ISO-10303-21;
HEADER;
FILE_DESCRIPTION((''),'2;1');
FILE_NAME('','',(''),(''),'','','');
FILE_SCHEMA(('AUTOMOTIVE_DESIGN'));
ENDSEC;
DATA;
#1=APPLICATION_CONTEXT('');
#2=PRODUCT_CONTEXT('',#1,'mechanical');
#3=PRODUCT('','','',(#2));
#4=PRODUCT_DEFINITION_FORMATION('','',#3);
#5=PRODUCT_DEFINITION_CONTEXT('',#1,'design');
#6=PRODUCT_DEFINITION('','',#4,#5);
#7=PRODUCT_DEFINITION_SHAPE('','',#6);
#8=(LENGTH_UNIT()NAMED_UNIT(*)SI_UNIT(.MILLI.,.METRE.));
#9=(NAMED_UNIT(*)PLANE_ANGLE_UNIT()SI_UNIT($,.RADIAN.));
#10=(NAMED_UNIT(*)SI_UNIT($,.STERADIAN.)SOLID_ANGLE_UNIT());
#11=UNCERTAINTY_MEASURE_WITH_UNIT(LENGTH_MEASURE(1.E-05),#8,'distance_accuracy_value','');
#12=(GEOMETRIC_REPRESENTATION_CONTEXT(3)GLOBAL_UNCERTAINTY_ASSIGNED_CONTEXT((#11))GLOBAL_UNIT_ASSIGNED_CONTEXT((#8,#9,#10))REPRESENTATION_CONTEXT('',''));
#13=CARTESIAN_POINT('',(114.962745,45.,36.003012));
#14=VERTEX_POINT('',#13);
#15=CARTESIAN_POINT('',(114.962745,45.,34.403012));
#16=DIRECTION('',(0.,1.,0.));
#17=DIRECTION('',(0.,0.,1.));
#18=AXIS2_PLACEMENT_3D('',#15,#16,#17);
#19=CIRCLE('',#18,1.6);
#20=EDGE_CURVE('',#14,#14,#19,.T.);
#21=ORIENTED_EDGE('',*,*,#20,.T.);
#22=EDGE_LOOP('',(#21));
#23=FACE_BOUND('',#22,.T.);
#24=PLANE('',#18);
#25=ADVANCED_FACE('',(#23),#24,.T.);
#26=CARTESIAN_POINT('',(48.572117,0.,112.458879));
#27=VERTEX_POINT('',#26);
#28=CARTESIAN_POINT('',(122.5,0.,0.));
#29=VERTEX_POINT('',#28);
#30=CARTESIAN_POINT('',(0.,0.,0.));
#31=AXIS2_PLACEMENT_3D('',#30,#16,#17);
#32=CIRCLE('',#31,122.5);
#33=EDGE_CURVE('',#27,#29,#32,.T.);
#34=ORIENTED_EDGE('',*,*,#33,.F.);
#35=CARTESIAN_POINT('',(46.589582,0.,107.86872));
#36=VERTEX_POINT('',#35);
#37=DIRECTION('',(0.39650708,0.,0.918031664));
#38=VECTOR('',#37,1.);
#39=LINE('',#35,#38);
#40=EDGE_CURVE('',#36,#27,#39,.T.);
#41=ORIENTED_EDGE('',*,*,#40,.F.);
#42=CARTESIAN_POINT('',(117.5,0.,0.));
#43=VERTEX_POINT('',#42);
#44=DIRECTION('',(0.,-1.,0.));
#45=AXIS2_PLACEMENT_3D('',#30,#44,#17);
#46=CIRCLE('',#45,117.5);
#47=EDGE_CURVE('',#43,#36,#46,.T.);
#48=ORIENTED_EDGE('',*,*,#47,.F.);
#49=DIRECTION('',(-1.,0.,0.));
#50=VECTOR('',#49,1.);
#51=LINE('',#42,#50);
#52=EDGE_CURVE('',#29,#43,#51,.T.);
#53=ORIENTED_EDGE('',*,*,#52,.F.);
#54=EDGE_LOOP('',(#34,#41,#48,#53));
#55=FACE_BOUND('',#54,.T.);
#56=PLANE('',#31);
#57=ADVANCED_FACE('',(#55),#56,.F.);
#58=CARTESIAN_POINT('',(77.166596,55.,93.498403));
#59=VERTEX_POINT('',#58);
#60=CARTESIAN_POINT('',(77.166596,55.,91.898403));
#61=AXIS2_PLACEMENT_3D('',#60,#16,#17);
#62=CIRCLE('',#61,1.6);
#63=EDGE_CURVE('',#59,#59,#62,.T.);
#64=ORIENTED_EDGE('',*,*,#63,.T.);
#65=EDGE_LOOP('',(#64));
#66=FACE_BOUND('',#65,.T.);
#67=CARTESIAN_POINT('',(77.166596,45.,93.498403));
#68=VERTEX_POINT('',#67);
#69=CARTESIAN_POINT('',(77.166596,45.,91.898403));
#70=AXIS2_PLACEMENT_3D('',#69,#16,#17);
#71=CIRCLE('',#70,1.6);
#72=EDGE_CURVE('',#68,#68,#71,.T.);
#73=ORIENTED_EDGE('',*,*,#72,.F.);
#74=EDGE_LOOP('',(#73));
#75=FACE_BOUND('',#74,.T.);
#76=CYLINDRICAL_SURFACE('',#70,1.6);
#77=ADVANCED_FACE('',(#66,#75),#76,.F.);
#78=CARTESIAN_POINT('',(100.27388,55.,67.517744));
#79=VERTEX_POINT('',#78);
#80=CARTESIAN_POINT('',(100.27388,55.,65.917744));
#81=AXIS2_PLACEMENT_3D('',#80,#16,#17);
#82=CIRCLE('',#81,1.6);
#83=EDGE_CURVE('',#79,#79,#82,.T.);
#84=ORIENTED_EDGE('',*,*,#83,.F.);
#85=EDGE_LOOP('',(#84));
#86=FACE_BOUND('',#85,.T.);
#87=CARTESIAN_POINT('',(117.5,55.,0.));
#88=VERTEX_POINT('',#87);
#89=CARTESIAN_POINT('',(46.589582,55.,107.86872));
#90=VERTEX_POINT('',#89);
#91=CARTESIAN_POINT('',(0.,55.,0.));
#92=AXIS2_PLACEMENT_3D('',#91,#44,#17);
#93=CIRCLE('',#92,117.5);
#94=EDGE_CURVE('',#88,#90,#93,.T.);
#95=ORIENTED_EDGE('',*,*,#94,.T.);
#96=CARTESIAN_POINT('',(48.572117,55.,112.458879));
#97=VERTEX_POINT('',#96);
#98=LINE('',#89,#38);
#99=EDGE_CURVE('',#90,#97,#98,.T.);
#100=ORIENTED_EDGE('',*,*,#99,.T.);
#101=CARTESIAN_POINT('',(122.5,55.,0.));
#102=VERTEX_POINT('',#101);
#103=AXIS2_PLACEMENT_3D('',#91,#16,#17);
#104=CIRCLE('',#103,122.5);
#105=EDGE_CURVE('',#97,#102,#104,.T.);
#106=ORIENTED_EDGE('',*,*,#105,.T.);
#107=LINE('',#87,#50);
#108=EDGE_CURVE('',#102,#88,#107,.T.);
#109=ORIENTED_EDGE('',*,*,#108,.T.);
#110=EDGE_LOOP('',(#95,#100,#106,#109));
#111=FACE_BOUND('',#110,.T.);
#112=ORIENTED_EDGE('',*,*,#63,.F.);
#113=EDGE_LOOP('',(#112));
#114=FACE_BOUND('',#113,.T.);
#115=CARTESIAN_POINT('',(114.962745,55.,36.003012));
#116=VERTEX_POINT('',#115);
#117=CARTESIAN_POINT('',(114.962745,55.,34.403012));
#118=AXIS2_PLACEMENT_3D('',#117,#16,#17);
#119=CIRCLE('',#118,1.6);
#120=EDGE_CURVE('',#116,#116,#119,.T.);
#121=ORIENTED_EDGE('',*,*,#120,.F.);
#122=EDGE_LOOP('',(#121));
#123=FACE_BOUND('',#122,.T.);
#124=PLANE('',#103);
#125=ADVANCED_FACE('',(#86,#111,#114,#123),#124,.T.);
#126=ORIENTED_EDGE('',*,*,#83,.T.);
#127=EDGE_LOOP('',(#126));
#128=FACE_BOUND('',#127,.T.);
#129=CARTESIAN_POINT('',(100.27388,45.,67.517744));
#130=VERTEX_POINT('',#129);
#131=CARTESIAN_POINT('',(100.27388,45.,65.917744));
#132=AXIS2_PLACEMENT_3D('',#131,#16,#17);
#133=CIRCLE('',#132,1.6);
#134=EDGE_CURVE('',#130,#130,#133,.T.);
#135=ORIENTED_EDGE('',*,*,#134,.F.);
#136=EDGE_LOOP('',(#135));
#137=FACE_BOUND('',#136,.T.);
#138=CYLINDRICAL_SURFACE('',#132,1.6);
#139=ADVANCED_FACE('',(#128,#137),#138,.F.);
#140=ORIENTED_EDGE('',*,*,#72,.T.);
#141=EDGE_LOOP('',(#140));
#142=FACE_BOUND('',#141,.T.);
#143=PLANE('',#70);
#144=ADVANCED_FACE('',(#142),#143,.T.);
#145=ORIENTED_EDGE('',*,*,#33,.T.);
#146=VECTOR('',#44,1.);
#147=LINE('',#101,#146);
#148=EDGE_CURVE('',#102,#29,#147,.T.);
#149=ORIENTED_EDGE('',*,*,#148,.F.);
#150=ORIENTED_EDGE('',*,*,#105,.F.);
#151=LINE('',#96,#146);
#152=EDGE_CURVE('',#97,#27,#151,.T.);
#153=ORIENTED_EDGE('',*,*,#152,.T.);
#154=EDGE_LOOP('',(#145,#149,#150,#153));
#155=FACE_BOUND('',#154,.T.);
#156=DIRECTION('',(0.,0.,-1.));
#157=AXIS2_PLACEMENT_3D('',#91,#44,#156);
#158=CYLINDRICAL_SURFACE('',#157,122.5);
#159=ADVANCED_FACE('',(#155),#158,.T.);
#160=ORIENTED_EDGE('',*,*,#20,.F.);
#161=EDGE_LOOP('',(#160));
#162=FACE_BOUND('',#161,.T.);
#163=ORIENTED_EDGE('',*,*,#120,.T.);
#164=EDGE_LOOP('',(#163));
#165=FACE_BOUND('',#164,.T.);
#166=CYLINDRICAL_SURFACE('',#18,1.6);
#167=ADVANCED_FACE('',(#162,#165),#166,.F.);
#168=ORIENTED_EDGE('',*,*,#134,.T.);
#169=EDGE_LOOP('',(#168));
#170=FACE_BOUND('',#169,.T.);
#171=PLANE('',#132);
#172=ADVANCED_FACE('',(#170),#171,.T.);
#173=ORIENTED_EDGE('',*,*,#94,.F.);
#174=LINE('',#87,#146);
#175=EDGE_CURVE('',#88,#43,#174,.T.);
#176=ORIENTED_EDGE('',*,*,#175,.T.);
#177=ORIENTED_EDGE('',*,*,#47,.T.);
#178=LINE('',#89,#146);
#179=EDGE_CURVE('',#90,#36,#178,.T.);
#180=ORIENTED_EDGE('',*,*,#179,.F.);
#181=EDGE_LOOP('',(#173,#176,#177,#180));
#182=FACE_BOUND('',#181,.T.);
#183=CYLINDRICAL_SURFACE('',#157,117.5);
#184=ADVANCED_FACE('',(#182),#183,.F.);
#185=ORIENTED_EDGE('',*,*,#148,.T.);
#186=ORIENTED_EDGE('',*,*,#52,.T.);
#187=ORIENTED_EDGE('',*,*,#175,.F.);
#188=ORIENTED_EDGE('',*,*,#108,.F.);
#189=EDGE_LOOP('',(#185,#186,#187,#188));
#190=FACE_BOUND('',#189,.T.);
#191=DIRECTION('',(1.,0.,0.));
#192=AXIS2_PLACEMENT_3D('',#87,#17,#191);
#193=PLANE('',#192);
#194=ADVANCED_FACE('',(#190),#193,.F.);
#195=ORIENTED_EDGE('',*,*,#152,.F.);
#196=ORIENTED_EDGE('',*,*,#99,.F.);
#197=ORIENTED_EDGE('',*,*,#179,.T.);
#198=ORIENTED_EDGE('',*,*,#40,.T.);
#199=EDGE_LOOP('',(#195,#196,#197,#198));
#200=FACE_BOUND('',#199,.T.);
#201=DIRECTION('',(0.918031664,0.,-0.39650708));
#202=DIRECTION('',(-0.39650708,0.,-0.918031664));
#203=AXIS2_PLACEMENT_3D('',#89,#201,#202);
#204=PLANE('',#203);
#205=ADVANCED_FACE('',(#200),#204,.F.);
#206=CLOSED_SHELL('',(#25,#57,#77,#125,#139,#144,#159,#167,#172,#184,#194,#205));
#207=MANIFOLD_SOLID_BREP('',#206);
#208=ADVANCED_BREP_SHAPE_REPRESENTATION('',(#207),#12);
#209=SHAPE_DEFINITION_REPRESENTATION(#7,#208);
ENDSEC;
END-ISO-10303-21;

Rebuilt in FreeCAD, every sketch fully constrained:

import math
import FreeCAD as App
import Part
import Sketcher

V = App.Vector
Q = App.Units.Quantity

doc = App.newDocument("Part")
body = doc.addObject("PartDesign::Body", "Body")

# Sketch on XZ plane
sketch1 = body.newObject("Sketcher::SketchObject", "Sketch")
sketch1.AttachmentSupport = (doc.getObject("XZ_Plane"), [""])
sketch1.MapMode = "FlatFace"
sketch1.addGeometry([
    Part.LineSegment(V(122, 0, 0), V(118, 0, 0)),
    Part.ArcOfCircle(Part.Circle(V(0, 0, 0), V(0, 0, 1), 117), math.radians(0), math.radians(67)),
    Part.LineSegment(V(47, 108, 0), V(49, 112, 0)),
    Part.ArcOfCircle(Part.Circle(V(0, 0, 0), V(0, 0, 1), 122), math.radians(0), math.radians(67)),
], False)
sketch1.addConstraint([
    Sketcher.Constraint("Coincident", 0, 2, 1, 1),
    Sketcher.Constraint("Coincident", 1, 2, 2, 1),
    Sketcher.Constraint("Coincident", 2, 2, 3, 2),
    Sketcher.Constraint("Coincident", 3, 1, 0, 1),
    Sketcher.Constraint("Horizontal", 0),
    Sketcher.Constraint("Coincident", 1, 3, -1, 1),
    Sketcher.Constraint("Coincident", 3, 3, -1, 1),
    Sketcher.Constraint("PointOnObject", 0, 2, -1),
    Sketcher.Constraint("Radius", 1, 117.5),
    Sketcher.Constraint("Radius", 3, 122.5),
    Sketcher.Constraint("Angle", 2, Q("66.64 deg")),
    Sketcher.Constraint("DistanceX", -1, 1, 1, 2, 46.589582),
])
pad1 = body.newObject("PartDesign::Pad", "Pad")
pad1.Profile = sketch1
pad1.Length = 55
pad1.Reversed = True

# Sketch on XZ plane
sketch2 = body.newObject("Sketcher::SketchObject", "Sketch001")
sketch2.AttachmentSupport = (doc.getObject("XZ_Plane"), [""])
sketch2.MapMode = "FlatFace"
sketch2.AttachmentOffset = App.Placement(V(0, 0, -55), App.Rotation())
sketch2.addGeometry([
    Part.Circle(V(77.2, 91.9, 0), V(0, 0, 1), 1.6),
    Part.Circle(V(100.3, 65.9, 0), V(0, 0, 1), 1.6),
    Part.Circle(V(115, 34.4, 0), V(0, 0, 1), 1.6),
], False)
sketch2.addConstraint([
    Sketcher.Constraint("Equal", 0, 1),
    Sketcher.Constraint("Equal", 1, 2),
    Sketcher.Constraint("Diameter", 0, 3.2),
    Sketcher.Constraint("DistanceX", -1, 1, 1, 3, 100.27388),
    Sketcher.Constraint("DistanceY", -1, 1, 2, 3, 34.403012),
    Sketcher.Constraint("DistanceY", 1, 3, 0, 3, 25.980658),
    Sketcher.Constraint("DistanceX", 0, 3, 2, 3, 37.796149),
    Sketcher.Constraint("DistanceY", 2, 3, 0, 3, 57.495391),
    Sketcher.Constraint("DistanceX", -1, 1, 0, 3, 77.166596),
])
pocket1 = body.newObject("PartDesign::Pocket", "Pocket")
pocket1.Profile = sketch2
pocket1.Length = 10
pocket1.Reversed = True

doc.recompute()
